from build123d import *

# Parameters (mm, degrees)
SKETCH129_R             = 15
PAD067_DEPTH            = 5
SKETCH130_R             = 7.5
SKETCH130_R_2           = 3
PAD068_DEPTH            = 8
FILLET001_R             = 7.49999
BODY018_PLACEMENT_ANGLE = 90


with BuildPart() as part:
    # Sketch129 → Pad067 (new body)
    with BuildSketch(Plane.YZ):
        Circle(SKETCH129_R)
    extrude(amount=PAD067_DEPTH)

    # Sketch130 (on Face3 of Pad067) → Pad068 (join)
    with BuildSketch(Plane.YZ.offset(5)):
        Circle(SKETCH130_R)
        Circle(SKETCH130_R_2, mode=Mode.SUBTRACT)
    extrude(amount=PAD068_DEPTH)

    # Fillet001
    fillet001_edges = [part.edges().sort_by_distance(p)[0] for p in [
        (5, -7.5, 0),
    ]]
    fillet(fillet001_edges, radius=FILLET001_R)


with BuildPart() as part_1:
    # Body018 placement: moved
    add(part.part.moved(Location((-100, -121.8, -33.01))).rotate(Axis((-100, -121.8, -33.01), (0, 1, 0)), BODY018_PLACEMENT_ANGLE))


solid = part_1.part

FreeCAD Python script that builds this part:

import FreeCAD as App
import Part
import Sketcher

V = App.Vector


def edges_at(feature, points):
    """Names of the edges that pass closest to the given points."""
    edges = feature.Shape.Edges
    near = lambda p: min(range(len(edges)), key=lambda i: edges[i].distToShape(Part.Vertex(*p))[0])
    return sorted({f"Edge{near(p) + 1}" for p in points})

doc = App.newDocument("Part")
body = doc.addObject("PartDesign::Body", "Body")

sketch1 = body.newObject("Sketcher::SketchObject", "Sketch")
sketch1.AttachmentSupport = (doc.getObject("YZ_Plane"), [""])
sketch1.MapMode = "FlatFace"
sketch1.addGeometry(Part.Circle(V(0, 0, 0), V(0, 0, 1), 15), False)
sketch1.addConstraint([
    Sketcher.Constraint("Coincident", 0, 3, -1, 1),
    Sketcher.Constraint("Diameter", 0, 30.0),
])
pad1 = body.newObject("PartDesign::Pad", "Pad")
pad1.Profile = sketch1
pad1.Length = 5

sketch2 = body.newObject("Sketcher::SketchObject", "Sketch001")
sketch2.AttachmentSupport = (doc.getObject("YZ_Plane"), [""])
sketch2.MapMode = "FlatFace"
sketch2.AttachmentOffset = App.Placement(V(0, 0, 5), App.Rotation())
sketch2.addGeometry([
    Part.Circle(V(0, 0, 0), V(0, 0, 1), 7.5),
    Part.Circle(V(0, 0, 0), V(0, 0, 1), 3),
], False)
sketch2.addConstraint([
    Sketcher.Constraint("Coincident", 0, 3, -1, 1),
    Sketcher.Constraint("Coincident", 1, 3, -1, 1),
    Sketcher.Constraint("Diameter", 0, 15.0),
    Sketcher.Constraint("Diameter", 1, 6.0),
])
pad2 = body.newObject("PartDesign::Pad", "Pad001")
pad2.Profile = sketch2
pad2.Length = 8
doc.recompute()

fillet = body.newObject("PartDesign::Fillet", "Fillet")
fillet.Base = (pad2, edges_at(pad2, [(5, -7.5, 0)]))
fillet.Radius = 7.49999
body2 = doc.addObject("PartDesign::Body", "Body001")
doc.recompute()

body.Placement = App.Placement(V(-100, -121.8, -33.01), App.Rotation(V(0, 1, 0), 90))
boolean = body2.newObject("PartDesign::Boolean", "Boolean")
boolean.Type = "Fuse"
boolean.addObjects([body])

doc.recompute()
